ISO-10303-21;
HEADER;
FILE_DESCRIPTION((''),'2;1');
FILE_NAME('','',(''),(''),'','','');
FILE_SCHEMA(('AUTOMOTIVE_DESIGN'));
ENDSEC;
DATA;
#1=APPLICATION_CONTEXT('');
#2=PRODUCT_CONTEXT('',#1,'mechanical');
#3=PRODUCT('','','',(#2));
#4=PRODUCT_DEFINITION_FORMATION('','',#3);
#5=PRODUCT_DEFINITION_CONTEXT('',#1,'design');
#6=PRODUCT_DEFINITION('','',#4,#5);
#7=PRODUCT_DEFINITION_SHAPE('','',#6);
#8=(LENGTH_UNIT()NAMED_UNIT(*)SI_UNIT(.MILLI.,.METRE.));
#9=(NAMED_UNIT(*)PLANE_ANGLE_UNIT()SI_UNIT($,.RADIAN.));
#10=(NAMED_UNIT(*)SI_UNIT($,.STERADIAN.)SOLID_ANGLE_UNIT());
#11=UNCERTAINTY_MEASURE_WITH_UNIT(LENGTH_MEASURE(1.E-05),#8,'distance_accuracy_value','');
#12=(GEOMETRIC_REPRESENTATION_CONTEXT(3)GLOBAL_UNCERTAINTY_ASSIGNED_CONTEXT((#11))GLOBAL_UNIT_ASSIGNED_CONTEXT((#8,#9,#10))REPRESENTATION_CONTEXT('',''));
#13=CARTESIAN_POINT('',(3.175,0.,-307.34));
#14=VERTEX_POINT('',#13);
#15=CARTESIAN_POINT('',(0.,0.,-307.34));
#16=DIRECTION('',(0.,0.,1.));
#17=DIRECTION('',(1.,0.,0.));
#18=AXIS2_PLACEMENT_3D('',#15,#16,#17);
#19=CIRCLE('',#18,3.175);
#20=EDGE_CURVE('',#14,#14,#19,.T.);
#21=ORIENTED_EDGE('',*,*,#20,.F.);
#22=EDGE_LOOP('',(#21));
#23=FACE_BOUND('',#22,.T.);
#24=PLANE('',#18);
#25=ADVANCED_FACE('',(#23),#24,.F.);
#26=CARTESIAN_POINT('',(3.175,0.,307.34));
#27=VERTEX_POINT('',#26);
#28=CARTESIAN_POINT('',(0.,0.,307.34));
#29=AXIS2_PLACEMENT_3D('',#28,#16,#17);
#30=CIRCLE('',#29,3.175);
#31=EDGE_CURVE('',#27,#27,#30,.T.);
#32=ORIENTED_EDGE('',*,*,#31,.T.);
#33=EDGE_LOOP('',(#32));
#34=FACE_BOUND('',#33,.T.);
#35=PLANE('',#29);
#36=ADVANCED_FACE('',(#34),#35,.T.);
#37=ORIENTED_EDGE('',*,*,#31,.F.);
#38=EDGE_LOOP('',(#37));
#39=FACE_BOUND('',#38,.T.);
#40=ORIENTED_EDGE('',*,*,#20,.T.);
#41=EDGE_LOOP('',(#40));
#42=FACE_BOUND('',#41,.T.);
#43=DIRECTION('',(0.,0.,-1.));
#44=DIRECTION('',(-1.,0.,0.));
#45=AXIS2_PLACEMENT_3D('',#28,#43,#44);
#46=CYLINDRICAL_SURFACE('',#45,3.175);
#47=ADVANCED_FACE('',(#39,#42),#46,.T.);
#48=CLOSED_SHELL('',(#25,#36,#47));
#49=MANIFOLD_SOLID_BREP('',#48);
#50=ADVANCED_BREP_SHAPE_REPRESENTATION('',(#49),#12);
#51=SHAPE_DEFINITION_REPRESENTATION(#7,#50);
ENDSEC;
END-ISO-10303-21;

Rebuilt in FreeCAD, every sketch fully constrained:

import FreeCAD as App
import Part
import Sketcher
from FreeCAD import Vector
Q = App.Units.Quantity

doc = App.newDocument("Part")
body = doc.addObject("PartDesign::Body", "Body")

sketch1 = body.newObject("Sketcher::SketchObject", "Sketch")
sketch1.AttachmentSupport = (doc.getObject("XY_Plane"), [""])
sketch1.MapMode = "FlatFace"
sketch1.addGeometry(Part.Circle(Vector(0, 0, 0), Vector(0, 0, 1), 3.2), False)
sketch1.addConstraint(Sketcher.Constraint("Coincident", 0, 3, -1, 1))
sketch1.addConstraint(Sketcher.Constraint("Diameter", 0, Q("0.25 in")))
pad1 = body.newObject("PartDesign::Pad", "Pad")
pad1.Profile = sketch1
pad1.Length = Q("24.2 in")
pad1.Midplane = True

doc.recompute()
